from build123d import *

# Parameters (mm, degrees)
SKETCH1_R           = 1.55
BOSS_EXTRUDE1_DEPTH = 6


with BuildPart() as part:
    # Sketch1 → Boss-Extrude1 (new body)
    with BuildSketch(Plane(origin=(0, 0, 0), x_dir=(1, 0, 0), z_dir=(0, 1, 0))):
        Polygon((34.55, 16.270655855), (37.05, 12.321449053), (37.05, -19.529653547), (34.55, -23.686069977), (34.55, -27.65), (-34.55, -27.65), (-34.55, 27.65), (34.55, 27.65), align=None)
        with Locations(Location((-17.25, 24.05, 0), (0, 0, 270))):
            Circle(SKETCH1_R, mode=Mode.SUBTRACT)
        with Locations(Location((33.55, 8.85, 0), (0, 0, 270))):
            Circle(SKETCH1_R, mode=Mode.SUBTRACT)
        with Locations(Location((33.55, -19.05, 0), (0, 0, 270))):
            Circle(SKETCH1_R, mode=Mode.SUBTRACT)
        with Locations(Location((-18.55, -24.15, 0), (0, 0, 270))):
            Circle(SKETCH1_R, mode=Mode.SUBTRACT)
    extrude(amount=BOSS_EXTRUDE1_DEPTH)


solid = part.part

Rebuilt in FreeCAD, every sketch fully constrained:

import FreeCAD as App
import Part
import Sketcher

V = App.Vector


def add_polygon(sketch, points):
    """Adds a closed chain of lines whose ends are joined by coincident constraints."""
    first, n = sketch.GeometryCount, len(points)
    for a, b in zip(points, points[1:] + points[:1]):
        sketch.addGeometry(Part.LineSegment(App.Vector(*a, 0), App.Vector(*b, 0)), False)
    for i in range(n):
        sketch.addConstraint(Sketcher.Constraint("Coincident", first + i, 2, first + (i + 1) % n, 1))

doc = App.newDocument("Part")
body = doc.addObject("PartDesign::Body", "Body")

# Sketch on XZ plane
sketch1 = body.newObject("Sketcher::SketchObject", "Sketch")
sketch1.AttachmentSupport = (doc.getObject("XZ_Plane"), [""])
sketch1.MapMode = "FlatFace"
add_polygon(sketch1, [(37, -12.3), (34.5, -16.3), (34.5, -27.6), (-34.5, -27.6), (-34.5, 27.6), (34.5, 27.6), (34.5, 23.7), (37, 19.5)])  # lines 0-7
sketch1.addGeometry(Part.Circle(V(33.5, 19.1, 0), V(0, 0, 1), 1.6), False)  # 8
sketch1.addGeometry(Part.Circle(V(-18.6, 24.1, 0), V(0, 0, 1), 1.6), False)  # 9
sketch1.addGeometry(Part.Circle(V(33.5, -8.8, 0), V(0, 0, 1), 1.6), False)  # 10
sketch1.addGeometry(Part.Circle(V(-17.2, -24.1, 0), V(0, 0, 1), 1.6), False)  # 11
sketch1.addConstraint(Sketcher.Constraint("Vertical", 1))
sketch1.addConstraint(Sketcher.Constraint("Horizontal", 2))
sketch1.addConstraint(Sketcher.Constraint("Vertical", 3))
sketch1.addConstraint(Sketcher.Constraint("Horizontal", 4))
sketch1.addConstraint(Sketcher.Constraint("Vertical", 5))
sketch1.addConstraint(Sketcher.Constraint("Vertical", 7))
sketch1.addConstraint(Sketcher.Constraint("Equal", 8, 9))
sketch1.addConstraint(Sketcher.Constraint("Equal", 9, 10))
sketch1.addConstraint(Sketcher.Constraint("Equal", 10, 11))
sketch1.addConstraint(Sketcher.Constraint("Symmetric", 1, 2, 3, 2, -1, 1))
sketch1.addConstraint(Sketcher.Constraint("Vertical", 8, 3, 10, 3))
sketch1.addConstraint(Sketcher.Constraint("Vertical", 1, 2, 4, 2))
sketch1.addConstraint(Sketcher.Constraint("Diameter", 8, 3.1))
sketch1.addConstraint(Sketcher.Constraint("DistanceX", 2, 2, 2, 1, 69.1))
sketch1.addConstraint(Sketcher.Constraint("DistanceY", 3, 1, 3, 2, 55.3))
sketch1.addConstraint(Sketcher.Constraint("DistanceY", 10, 3, 9, 3, 33.0))
sketch1.addConstraint(Sketcher.Constraint("DistanceX", 10, 3, 0, 2, 1.0))
sketch1.addConstraint(Sketcher.Constraint("DistanceX", 2, 2, 9, 3, 16.0))
sketch1.addConstraint(Sketcher.Constraint("DistanceY", 8, 3, 9, 3, 5.1))
sketch1.addConstraint(Sketcher.Constraint("DistanceX", 9, 3, 11, 3, 1.3))
sketch1.addConstraint(Sketcher.Constraint("DistanceY", 11, 3, 9, 3, 48.2))
sketch1.addConstraint(Sketcher.Constraint("DistanceY", 1, 2, 10, 3, 18.8))
sketch1.addConstraint(Sketcher.Constraint("DistanceX", 8, 3, 6, 2, 3.5))
sketch1.addConstraint(Sketcher.Constraint("DistanceY", 5, 2, 5, 1, 3.96393))
sketch1.addConstraint(Sketcher.Constraint("Distance", 6, 4.85034))
sketch1.addConstraint(Sketcher.Constraint("DistanceY", 1, 2, 1, 1, 11.379344))
sketch1.addConstraint(Sketcher.Constraint("DistanceY", 7, 2, 7, 1, 31.851103))
pad1 = body.newObject("PartDesign::Pad", "Pad")
pad1.Profile = sketch1
pad1.Length = 6
pad1.Reversed = True

doc.recompute()
